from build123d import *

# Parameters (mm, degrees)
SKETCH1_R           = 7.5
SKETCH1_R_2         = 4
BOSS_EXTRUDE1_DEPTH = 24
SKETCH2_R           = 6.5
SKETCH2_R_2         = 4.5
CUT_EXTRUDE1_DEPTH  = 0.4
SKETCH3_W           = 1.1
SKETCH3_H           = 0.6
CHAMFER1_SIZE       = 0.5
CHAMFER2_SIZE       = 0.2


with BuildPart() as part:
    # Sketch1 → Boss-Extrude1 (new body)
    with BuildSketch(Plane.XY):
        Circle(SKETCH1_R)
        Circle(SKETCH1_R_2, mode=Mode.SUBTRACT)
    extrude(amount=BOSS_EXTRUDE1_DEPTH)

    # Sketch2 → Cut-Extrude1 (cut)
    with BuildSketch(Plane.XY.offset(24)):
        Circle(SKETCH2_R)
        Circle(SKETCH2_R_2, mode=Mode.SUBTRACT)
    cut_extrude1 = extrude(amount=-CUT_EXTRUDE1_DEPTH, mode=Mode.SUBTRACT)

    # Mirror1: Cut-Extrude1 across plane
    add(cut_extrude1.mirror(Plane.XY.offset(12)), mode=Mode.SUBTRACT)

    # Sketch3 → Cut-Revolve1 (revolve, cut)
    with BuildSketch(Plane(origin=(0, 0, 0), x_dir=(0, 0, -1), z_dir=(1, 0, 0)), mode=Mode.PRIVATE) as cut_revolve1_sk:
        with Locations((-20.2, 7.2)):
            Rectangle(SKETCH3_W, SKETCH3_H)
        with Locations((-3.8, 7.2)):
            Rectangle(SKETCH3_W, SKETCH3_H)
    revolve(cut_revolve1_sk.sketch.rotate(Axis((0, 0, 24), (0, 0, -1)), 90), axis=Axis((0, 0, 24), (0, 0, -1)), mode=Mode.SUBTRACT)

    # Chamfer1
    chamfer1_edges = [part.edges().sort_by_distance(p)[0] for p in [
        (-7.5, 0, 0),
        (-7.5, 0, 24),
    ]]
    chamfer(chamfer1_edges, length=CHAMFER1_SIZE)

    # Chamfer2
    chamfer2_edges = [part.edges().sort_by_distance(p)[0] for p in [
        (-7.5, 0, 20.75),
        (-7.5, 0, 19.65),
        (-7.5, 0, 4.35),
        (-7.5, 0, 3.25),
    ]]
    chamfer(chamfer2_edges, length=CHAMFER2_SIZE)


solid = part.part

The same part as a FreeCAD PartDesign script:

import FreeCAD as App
import Part
import Sketcher

V = App.Vector


def edges_at(feature, points):
    """Names of the edges that pass closest to the given points."""
    edges = feature.Shape.Edges
    near = lambda p: min(range(len(edges)), key=lambda i: edges[i].distToShape(Part.Vertex(*p))[0])
    return sorted({f"Edge{near(p) + 1}" for p in points})


def add_polygon(sketch, points):
    """Adds a closed chain of lines whose ends are joined by coincident constraints."""
    first, n = sketch.GeometryCount, len(points)
    for a, b in zip(points, points[1:] + points[:1]):
        sketch.addGeometry(Part.LineSegment(App.Vector(*a, 0), App.Vector(*b, 0)), False)
    for i in range(n):
        sketch.addConstraint(Sketcher.Constraint("Coincident", first + i, 2, first + (i + 1) % n, 1))

doc = App.newDocument("Part")
body = doc.addObject("PartDesign::Body", "Body")

sketch1 = body.newObject("Sketcher::SketchObject", "Sketch")
sketch1.AttachmentSupport = (doc.getObject("XY_Plane"), [""])
sketch1.MapMode = "FlatFace"
sketch1.addGeometry([
    Part.Circle(V(0, 0, 0), V(0, 0, 1), 7.5),
    Part.Circle(V(0, 0, 0), V(0, 0, 1), 4),
], False)
sketch1.addConstraint([
    Sketcher.Constraint("Coincident", 0, 3, -1, 1),
    Sketcher.Constraint("Coincident", 1, 3, -1, 1),
    Sketcher.Constraint("Diameter", 0, 15.0),
    Sketcher.Constraint("Diameter", 1, 8.0),
])
pad1 = body.newObject("PartDesign::Pad", "Pad")
pad1.Profile = sketch1
pad1.Length = 24

sketch2 = body.newObject("Sketcher::SketchObject", "Sketch001")
sketch2.AttachmentSupport = (doc.getObject("XY_Plane"), [""])
sketch2.MapMode = "FlatFace"
sketch2.AttachmentOffset = App.Placement(V(0, 0, 24), App.Rotation())
sketch2.addGeometry([
    Part.Circle(V(0, 0, 0), V(0, 0, 1), 6.5),
    Part.Circle(V(0, 0, 0), V(0, 0, 1), 4.5),
], False)
sketch2.addConstraint([
    Sketcher.Constraint("Coincident", 0, 3, -1, 1),
    Sketcher.Constraint("Coincident", 1, 3, -1, 1),
    Sketcher.Constraint("Diameter", 0, 13.0),
    Sketcher.Constraint("Diameter", 1, 9.0),
])
pocket1 = body.newObject("PartDesign::Pocket", "Pocket")
pocket1.Profile = sketch2
pocket1.Length = 0.4
doc.recompute()

datumplane = body.newObject("PartDesign::Plane", "DatumPlane")
datumplane.AttachmentSupport = (doc.getObject("XY_Plane"), [""])
datumplane.MapMode = "FlatFace"
datumplane.AttachmentOffset = App.Placement(V(0, 0, 12), App.Rotation())
mirrored = body.newObject("PartDesign::Mirrored", "Mirrored")
mirrored.Originals = [pocket1]
mirrored.MirrorPlane = (datumplane, [""])
body.Tip = mirrored

sketch3 = body.newObject("Sketcher::SketchObject", "Sketch002")
sketch3.AttachmentSupport = (doc.getObject("YZ_Plane"), [""])
sketch3.MapMode = "FlatFace"
add_polygon(sketch3, [(7.5, 20.8), (6.9, 20.8), (6.9, 19.6), (7.5, 19.6)])
add_polygon(sketch3, [(7.5, 4.3), (6.9, 4.3), (6.9, 3.2), (7.5, 3.2)])
sketch3.addConstraint([
    Sketcher.Constraint("Horizontal", 0),
    Sketcher.Constraint("Vertical", 1),
    Sketcher.Constraint("Horizontal", 2),
    Sketcher.Constraint("Vertical", 3),
    Sketcher.Constraint("Horizontal", 4),
    Sketcher.Constraint("Vertical", 5),
    Sketcher.Constraint("Horizontal", 6),
    Sketcher.Constraint("Vertical", 7),
    Sketcher.Constraint("Vertical", 1, 2, 4, 2),
    Sketcher.Constraint("Vertical", 3, 2, 6, 2),
    Sketcher.Constraint("Equal", 3, 5),
    Sketcher.Constraint("DistanceX", 0, 2, 0, 1, 0.6),
    Sketcher.Constraint("DistanceY", 1, 2, 1, 1, 1.1),
    Sketcher.Constraint("DistanceX", -1, 1, 0, 2, 6.9),
    Sketcher.Constraint("DistanceY", 4, 2, 1, 2, 15.3),
    Sketcher.Constraint("DistanceY", -1, 1, 0, 2, 20.75),
])
groove = body.newObject("PartDesign::Groove", "Groove")
groove.Profile = sketch3
groove.ReferenceAxis = (sketch3, ["V_Axis"])
groove.Angle = 360
doc.recompute()

chamfer = body.newObject("PartDesign::Chamfer", "Chamfer")
chamfer.Base = (groove, edges_at(groove, [(-7.5, 0, 0), (-7.5, 0, 24)]))
chamfer.Size = 0.5
doc.recompute()

chamfer2 = body.newObject("PartDesign::Chamfer", "Chamfer001")
chamfer2.Base = (chamfer, edges_at(chamfer, [
    (-7.5, 0, 20.75),
    (-7.5, 0, 19.65),
    (-7.5, 0, 4.35),
    (-7.5, 0, 3.25),
]))
chamfer2.Size = 0.2

doc.recompute()
